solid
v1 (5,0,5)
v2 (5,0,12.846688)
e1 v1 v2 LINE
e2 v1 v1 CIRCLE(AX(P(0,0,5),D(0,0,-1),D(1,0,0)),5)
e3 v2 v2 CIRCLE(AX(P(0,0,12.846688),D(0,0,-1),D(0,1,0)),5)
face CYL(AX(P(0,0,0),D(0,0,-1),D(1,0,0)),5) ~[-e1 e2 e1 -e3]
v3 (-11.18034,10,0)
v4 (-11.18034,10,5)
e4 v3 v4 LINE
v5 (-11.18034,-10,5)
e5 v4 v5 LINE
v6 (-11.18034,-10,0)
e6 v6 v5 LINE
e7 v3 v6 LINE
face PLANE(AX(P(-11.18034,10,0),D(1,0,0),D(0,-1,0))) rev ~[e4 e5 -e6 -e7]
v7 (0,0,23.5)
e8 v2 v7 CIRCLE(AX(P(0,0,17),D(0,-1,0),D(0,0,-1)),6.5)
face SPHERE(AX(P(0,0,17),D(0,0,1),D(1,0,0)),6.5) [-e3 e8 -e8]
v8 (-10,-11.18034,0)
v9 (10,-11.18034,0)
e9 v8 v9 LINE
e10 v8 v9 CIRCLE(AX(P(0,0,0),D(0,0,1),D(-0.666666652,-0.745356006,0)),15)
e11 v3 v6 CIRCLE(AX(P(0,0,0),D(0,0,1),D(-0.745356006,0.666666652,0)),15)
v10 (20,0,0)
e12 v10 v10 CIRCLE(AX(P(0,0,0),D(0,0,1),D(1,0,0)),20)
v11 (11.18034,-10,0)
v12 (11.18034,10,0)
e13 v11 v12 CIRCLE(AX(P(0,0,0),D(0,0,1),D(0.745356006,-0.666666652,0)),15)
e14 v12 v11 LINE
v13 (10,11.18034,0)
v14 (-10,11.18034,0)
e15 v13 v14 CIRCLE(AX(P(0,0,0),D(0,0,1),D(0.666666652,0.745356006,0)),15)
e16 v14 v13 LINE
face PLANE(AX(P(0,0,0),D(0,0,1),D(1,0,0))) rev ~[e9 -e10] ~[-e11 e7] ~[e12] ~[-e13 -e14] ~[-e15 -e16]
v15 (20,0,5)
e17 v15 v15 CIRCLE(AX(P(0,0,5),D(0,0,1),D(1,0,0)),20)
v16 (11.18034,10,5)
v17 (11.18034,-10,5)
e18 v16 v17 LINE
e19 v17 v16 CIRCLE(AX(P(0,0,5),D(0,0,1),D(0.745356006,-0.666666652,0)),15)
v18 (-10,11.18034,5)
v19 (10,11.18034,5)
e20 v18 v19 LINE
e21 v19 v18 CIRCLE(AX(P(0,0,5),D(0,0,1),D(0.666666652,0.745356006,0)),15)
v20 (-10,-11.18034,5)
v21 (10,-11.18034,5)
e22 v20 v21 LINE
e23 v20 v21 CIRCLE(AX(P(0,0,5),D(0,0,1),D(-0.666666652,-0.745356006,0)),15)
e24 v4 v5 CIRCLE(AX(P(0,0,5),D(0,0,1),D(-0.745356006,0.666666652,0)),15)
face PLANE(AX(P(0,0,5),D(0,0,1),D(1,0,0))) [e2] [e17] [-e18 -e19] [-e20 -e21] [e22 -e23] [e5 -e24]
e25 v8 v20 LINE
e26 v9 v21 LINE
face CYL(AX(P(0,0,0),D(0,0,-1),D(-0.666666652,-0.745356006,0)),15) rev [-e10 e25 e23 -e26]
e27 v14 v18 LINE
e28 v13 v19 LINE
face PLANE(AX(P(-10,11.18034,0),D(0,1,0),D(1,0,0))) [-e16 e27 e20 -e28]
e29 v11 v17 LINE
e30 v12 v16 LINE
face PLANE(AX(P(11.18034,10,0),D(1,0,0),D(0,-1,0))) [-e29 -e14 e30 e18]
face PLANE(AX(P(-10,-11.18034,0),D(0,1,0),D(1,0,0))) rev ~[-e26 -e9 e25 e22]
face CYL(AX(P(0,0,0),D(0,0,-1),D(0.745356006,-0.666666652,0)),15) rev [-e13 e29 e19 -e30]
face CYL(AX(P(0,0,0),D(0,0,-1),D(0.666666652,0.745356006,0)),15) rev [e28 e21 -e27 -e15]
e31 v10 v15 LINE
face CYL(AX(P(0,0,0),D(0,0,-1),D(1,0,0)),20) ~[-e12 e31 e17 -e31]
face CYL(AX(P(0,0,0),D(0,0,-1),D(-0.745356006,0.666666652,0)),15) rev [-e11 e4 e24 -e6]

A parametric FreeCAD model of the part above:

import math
import FreeCAD as App
import Part
import Sketcher

V = App.Vector
Q = App.Units.Quantity

doc = App.newDocument("Part")
body = doc.addObject("PartDesign::Body", "Body")

sketch1 = doc.addObject("Sketcher::SketchObject", "Sketch")
body.addObject(sketch1)
sketch1.AttachmentSupport = (doc.XY_Plane, [""])
sketch1.MapMode = "FlatFace"
sketch1.addGeometry(Part.Circle(V(0, 0, 0), V(0, 0, 1), 20), False)
sketch1.addGeometry(Part.ArcOfCircle(Part.Circle(V(0, 0, 0), V(0, 0, 1), 15), math.radians(-132), math.radians(-48)), False)
sketch1.addGeometry(Part.LineSegment(V(-10, -11, 0), V(10, -11, 0)), False)
sketch1.addGeometry(Part.ArcOfCircle(Part.Circle(V(0, 0, 0), V(0, 0, 1), 15), math.radians(138), math.radians(222)), False)
sketch1.addGeometry(Part.LineSegment(V(-11, 10, 0), V(-11, -10, 0)), False)
sketch1.addGeometry(Part.ArcOfCircle(Part.Circle(V(0, 0, 0), V(0, 0, 1), 15), math.radians(48), math.radians(132)), False)
sketch1.addGeometry(Part.LineSegment(V(10, 11, 0), V(-10, 11, 0)), False)
sketch1.addGeometry(Part.ArcOfCircle(Part.Circle(V(0, 0, 0), V(0, 0, 1), 15), math.radians(-42), math.radians(42)), False)
sketch1.addGeometry(Part.LineSegment(V(11, -10, 0), V(11, 10, 0)), False)
sketch1.addConstraint(Sketcher.Constraint("Coincident", 1, 1, 2, 1))
sketch1.addConstraint(Sketcher.Constraint("Coincident", 2, 2, 1, 2))
sketch1.addConstraint(Sketcher.Constraint("Coincident", 3, 1, 4, 1))
sketch1.addConstraint(Sketcher.Constraint("Coincident", 4, 2, 3, 2))
sketch1.addConstraint(Sketcher.Constraint("Coincident", 5, 1, 6, 1))
sketch1.addConstraint(Sketcher.Constraint("Coincident", 6, 2, 5, 2))
sketch1.addConstraint(Sketcher.Constraint("Coincident", 7, 1, 8, 1))
sketch1.addConstraint(Sketcher.Constraint("Coincident", 8, 2, 7, 2))
sketch1.addConstraint(Sketcher.Constraint("Horizontal", 2))
sketch1.addConstraint(Sketcher.Constraint("Vertical", 4))
sketch1.addConstraint(Sketcher.Constraint("Horizontal", 6))
sketch1.addConstraint(Sketcher.Constraint("Vertical", 8))
sketch1.addConstraint(Sketcher.Constraint("Coincident", 0, 3, -1, 1))
sketch1.addConstraint(Sketcher.Constraint("Coincident", 1, 3, -1, 1))
sketch1.addConstraint(Sketcher.Constraint("Coincident", 3, 3, -1, 1))
sketch1.addConstraint(Sketcher.Constraint("Coincident", 5, 3, -1, 1))
sketch1.addConstraint(Sketcher.Constraint("Coincident", 7, 3, -1, 1))
sketch1.addConstraint(Sketcher.Constraint("Equal", 1, 3))
sketch1.addConstraint(Sketcher.Constraint("Equal", 3, 5))
sketch1.addConstraint(Sketcher.Constraint("Equal", 5, 7))
sketch1.addConstraint(Sketcher.Constraint("Horizontal", 4, 2, 7, 1))
sketch1.addConstraint(Sketcher.Constraint("Vertical", 2, 2, 5, 1))
sketch1.addConstraint(Sketcher.Constraint("Equal", 6, 4))
sketch1.addConstraint(Sketcher.Constraint("Diameter", 0, Q("40 mm")))
sketch1.addConstraint(Sketcher.Constraint("Radius", 1, Q("15 mm")))
sketch1.addConstraint(Sketcher.Constraint("DistanceX", 2, 1, 2, 2, Q("20 mm")))
pad1 = doc.addObject("PartDesign::Pad", "Pad")
body.addObject(pad1)
pad1.Profile = sketch1
pad1.Length = 5
body2 = doc.addObject("PartDesign::Body", "Body001")

sketch2 = doc.addObject("Sketcher::SketchObject", "Sketch001")
body2.addObject(sketch2)
sketch2.AttachmentSupport = (doc.getObject("XZ_Plane001"), [""])
sketch2.MapMode = "FlatFace"
sketch2.addGeometry(Part.ArcOfCircle(Part.Circle(V(0, 17, 0), V(0, 0, 1), 6), math.radians(-90), math.radians(90)), False)
sketch2.addGeometry(Part.LineSegment(V(0, 24, 0), V(0, 10, 0)), False)
sketch2.addConstraint(Sketcher.Constraint("Coincident", 0, 1, 1, 2))
sketch2.addConstraint(Sketcher.Constraint("Coincident", 1, 1, 0, 2))
sketch2.addConstraint(Sketcher.Constraint("Vertical", 1))
sketch2.addConstraint(Sketcher.Constraint("PointOnObject", 0, 3, -2))
sketch2.addConstraint(Sketcher.Constraint("PointOnObject", 0, 1, -2))
sketch2.addConstraint(Sketcher.Constraint("Radius", 0, Q("6.5 mm")))
sketch2.addConstraint(Sketcher.Constraint("DistanceY", -1, 1, 0, 3, Q("17 mm")))
revolution = doc.addObject("PartDesign::Revolution", "Revolution")
body2.addObject(revolution)
revolution.Profile = sketch2
revolution.ReferenceAxis = (sketch2, ["V_Axis"])
revolution.Angle = 360
body3 = doc.addObject("PartDesign::Body", "Body002")

sketch3 = doc.addObject("Sketcher::SketchObject", "Sketch002")
body3.addObject(sketch3)
sketch3.AttachmentSupport = (doc.getObject("XY_Plane002"), [""])
sketch3.MapMode = "FlatFace"
sketch3.addGeometry(Part.Circle(V(0, 0, 0), V(0, 0, 1), 5), False)
sketch3.addConstraint(Sketcher.Constraint("Coincident", 0, 3, -1, 1))
sketch3.addConstraint(Sketcher.Constraint("Diameter", 0, Q("10 mm")))
pad2 = doc.addObject("PartDesign::Pad", "Pad001")
body3.addObject(pad2)
pad2.Profile = sketch3
pad2.Length = 15
doc.recompute()

boolean = doc.addObject("PartDesign::Boolean", "Boolean")
body3.addObject(boolean)
boolean.Type = "Fuse"
boolean.addObjects([body])
doc.recompute()

boolean2 = doc.addObject("PartDesign::Boolean", "Boolean001")
body3.addObject(boolean2)
boolean2.Type = "Fuse"
boolean2.addObjects([body2])

doc.recompute()
